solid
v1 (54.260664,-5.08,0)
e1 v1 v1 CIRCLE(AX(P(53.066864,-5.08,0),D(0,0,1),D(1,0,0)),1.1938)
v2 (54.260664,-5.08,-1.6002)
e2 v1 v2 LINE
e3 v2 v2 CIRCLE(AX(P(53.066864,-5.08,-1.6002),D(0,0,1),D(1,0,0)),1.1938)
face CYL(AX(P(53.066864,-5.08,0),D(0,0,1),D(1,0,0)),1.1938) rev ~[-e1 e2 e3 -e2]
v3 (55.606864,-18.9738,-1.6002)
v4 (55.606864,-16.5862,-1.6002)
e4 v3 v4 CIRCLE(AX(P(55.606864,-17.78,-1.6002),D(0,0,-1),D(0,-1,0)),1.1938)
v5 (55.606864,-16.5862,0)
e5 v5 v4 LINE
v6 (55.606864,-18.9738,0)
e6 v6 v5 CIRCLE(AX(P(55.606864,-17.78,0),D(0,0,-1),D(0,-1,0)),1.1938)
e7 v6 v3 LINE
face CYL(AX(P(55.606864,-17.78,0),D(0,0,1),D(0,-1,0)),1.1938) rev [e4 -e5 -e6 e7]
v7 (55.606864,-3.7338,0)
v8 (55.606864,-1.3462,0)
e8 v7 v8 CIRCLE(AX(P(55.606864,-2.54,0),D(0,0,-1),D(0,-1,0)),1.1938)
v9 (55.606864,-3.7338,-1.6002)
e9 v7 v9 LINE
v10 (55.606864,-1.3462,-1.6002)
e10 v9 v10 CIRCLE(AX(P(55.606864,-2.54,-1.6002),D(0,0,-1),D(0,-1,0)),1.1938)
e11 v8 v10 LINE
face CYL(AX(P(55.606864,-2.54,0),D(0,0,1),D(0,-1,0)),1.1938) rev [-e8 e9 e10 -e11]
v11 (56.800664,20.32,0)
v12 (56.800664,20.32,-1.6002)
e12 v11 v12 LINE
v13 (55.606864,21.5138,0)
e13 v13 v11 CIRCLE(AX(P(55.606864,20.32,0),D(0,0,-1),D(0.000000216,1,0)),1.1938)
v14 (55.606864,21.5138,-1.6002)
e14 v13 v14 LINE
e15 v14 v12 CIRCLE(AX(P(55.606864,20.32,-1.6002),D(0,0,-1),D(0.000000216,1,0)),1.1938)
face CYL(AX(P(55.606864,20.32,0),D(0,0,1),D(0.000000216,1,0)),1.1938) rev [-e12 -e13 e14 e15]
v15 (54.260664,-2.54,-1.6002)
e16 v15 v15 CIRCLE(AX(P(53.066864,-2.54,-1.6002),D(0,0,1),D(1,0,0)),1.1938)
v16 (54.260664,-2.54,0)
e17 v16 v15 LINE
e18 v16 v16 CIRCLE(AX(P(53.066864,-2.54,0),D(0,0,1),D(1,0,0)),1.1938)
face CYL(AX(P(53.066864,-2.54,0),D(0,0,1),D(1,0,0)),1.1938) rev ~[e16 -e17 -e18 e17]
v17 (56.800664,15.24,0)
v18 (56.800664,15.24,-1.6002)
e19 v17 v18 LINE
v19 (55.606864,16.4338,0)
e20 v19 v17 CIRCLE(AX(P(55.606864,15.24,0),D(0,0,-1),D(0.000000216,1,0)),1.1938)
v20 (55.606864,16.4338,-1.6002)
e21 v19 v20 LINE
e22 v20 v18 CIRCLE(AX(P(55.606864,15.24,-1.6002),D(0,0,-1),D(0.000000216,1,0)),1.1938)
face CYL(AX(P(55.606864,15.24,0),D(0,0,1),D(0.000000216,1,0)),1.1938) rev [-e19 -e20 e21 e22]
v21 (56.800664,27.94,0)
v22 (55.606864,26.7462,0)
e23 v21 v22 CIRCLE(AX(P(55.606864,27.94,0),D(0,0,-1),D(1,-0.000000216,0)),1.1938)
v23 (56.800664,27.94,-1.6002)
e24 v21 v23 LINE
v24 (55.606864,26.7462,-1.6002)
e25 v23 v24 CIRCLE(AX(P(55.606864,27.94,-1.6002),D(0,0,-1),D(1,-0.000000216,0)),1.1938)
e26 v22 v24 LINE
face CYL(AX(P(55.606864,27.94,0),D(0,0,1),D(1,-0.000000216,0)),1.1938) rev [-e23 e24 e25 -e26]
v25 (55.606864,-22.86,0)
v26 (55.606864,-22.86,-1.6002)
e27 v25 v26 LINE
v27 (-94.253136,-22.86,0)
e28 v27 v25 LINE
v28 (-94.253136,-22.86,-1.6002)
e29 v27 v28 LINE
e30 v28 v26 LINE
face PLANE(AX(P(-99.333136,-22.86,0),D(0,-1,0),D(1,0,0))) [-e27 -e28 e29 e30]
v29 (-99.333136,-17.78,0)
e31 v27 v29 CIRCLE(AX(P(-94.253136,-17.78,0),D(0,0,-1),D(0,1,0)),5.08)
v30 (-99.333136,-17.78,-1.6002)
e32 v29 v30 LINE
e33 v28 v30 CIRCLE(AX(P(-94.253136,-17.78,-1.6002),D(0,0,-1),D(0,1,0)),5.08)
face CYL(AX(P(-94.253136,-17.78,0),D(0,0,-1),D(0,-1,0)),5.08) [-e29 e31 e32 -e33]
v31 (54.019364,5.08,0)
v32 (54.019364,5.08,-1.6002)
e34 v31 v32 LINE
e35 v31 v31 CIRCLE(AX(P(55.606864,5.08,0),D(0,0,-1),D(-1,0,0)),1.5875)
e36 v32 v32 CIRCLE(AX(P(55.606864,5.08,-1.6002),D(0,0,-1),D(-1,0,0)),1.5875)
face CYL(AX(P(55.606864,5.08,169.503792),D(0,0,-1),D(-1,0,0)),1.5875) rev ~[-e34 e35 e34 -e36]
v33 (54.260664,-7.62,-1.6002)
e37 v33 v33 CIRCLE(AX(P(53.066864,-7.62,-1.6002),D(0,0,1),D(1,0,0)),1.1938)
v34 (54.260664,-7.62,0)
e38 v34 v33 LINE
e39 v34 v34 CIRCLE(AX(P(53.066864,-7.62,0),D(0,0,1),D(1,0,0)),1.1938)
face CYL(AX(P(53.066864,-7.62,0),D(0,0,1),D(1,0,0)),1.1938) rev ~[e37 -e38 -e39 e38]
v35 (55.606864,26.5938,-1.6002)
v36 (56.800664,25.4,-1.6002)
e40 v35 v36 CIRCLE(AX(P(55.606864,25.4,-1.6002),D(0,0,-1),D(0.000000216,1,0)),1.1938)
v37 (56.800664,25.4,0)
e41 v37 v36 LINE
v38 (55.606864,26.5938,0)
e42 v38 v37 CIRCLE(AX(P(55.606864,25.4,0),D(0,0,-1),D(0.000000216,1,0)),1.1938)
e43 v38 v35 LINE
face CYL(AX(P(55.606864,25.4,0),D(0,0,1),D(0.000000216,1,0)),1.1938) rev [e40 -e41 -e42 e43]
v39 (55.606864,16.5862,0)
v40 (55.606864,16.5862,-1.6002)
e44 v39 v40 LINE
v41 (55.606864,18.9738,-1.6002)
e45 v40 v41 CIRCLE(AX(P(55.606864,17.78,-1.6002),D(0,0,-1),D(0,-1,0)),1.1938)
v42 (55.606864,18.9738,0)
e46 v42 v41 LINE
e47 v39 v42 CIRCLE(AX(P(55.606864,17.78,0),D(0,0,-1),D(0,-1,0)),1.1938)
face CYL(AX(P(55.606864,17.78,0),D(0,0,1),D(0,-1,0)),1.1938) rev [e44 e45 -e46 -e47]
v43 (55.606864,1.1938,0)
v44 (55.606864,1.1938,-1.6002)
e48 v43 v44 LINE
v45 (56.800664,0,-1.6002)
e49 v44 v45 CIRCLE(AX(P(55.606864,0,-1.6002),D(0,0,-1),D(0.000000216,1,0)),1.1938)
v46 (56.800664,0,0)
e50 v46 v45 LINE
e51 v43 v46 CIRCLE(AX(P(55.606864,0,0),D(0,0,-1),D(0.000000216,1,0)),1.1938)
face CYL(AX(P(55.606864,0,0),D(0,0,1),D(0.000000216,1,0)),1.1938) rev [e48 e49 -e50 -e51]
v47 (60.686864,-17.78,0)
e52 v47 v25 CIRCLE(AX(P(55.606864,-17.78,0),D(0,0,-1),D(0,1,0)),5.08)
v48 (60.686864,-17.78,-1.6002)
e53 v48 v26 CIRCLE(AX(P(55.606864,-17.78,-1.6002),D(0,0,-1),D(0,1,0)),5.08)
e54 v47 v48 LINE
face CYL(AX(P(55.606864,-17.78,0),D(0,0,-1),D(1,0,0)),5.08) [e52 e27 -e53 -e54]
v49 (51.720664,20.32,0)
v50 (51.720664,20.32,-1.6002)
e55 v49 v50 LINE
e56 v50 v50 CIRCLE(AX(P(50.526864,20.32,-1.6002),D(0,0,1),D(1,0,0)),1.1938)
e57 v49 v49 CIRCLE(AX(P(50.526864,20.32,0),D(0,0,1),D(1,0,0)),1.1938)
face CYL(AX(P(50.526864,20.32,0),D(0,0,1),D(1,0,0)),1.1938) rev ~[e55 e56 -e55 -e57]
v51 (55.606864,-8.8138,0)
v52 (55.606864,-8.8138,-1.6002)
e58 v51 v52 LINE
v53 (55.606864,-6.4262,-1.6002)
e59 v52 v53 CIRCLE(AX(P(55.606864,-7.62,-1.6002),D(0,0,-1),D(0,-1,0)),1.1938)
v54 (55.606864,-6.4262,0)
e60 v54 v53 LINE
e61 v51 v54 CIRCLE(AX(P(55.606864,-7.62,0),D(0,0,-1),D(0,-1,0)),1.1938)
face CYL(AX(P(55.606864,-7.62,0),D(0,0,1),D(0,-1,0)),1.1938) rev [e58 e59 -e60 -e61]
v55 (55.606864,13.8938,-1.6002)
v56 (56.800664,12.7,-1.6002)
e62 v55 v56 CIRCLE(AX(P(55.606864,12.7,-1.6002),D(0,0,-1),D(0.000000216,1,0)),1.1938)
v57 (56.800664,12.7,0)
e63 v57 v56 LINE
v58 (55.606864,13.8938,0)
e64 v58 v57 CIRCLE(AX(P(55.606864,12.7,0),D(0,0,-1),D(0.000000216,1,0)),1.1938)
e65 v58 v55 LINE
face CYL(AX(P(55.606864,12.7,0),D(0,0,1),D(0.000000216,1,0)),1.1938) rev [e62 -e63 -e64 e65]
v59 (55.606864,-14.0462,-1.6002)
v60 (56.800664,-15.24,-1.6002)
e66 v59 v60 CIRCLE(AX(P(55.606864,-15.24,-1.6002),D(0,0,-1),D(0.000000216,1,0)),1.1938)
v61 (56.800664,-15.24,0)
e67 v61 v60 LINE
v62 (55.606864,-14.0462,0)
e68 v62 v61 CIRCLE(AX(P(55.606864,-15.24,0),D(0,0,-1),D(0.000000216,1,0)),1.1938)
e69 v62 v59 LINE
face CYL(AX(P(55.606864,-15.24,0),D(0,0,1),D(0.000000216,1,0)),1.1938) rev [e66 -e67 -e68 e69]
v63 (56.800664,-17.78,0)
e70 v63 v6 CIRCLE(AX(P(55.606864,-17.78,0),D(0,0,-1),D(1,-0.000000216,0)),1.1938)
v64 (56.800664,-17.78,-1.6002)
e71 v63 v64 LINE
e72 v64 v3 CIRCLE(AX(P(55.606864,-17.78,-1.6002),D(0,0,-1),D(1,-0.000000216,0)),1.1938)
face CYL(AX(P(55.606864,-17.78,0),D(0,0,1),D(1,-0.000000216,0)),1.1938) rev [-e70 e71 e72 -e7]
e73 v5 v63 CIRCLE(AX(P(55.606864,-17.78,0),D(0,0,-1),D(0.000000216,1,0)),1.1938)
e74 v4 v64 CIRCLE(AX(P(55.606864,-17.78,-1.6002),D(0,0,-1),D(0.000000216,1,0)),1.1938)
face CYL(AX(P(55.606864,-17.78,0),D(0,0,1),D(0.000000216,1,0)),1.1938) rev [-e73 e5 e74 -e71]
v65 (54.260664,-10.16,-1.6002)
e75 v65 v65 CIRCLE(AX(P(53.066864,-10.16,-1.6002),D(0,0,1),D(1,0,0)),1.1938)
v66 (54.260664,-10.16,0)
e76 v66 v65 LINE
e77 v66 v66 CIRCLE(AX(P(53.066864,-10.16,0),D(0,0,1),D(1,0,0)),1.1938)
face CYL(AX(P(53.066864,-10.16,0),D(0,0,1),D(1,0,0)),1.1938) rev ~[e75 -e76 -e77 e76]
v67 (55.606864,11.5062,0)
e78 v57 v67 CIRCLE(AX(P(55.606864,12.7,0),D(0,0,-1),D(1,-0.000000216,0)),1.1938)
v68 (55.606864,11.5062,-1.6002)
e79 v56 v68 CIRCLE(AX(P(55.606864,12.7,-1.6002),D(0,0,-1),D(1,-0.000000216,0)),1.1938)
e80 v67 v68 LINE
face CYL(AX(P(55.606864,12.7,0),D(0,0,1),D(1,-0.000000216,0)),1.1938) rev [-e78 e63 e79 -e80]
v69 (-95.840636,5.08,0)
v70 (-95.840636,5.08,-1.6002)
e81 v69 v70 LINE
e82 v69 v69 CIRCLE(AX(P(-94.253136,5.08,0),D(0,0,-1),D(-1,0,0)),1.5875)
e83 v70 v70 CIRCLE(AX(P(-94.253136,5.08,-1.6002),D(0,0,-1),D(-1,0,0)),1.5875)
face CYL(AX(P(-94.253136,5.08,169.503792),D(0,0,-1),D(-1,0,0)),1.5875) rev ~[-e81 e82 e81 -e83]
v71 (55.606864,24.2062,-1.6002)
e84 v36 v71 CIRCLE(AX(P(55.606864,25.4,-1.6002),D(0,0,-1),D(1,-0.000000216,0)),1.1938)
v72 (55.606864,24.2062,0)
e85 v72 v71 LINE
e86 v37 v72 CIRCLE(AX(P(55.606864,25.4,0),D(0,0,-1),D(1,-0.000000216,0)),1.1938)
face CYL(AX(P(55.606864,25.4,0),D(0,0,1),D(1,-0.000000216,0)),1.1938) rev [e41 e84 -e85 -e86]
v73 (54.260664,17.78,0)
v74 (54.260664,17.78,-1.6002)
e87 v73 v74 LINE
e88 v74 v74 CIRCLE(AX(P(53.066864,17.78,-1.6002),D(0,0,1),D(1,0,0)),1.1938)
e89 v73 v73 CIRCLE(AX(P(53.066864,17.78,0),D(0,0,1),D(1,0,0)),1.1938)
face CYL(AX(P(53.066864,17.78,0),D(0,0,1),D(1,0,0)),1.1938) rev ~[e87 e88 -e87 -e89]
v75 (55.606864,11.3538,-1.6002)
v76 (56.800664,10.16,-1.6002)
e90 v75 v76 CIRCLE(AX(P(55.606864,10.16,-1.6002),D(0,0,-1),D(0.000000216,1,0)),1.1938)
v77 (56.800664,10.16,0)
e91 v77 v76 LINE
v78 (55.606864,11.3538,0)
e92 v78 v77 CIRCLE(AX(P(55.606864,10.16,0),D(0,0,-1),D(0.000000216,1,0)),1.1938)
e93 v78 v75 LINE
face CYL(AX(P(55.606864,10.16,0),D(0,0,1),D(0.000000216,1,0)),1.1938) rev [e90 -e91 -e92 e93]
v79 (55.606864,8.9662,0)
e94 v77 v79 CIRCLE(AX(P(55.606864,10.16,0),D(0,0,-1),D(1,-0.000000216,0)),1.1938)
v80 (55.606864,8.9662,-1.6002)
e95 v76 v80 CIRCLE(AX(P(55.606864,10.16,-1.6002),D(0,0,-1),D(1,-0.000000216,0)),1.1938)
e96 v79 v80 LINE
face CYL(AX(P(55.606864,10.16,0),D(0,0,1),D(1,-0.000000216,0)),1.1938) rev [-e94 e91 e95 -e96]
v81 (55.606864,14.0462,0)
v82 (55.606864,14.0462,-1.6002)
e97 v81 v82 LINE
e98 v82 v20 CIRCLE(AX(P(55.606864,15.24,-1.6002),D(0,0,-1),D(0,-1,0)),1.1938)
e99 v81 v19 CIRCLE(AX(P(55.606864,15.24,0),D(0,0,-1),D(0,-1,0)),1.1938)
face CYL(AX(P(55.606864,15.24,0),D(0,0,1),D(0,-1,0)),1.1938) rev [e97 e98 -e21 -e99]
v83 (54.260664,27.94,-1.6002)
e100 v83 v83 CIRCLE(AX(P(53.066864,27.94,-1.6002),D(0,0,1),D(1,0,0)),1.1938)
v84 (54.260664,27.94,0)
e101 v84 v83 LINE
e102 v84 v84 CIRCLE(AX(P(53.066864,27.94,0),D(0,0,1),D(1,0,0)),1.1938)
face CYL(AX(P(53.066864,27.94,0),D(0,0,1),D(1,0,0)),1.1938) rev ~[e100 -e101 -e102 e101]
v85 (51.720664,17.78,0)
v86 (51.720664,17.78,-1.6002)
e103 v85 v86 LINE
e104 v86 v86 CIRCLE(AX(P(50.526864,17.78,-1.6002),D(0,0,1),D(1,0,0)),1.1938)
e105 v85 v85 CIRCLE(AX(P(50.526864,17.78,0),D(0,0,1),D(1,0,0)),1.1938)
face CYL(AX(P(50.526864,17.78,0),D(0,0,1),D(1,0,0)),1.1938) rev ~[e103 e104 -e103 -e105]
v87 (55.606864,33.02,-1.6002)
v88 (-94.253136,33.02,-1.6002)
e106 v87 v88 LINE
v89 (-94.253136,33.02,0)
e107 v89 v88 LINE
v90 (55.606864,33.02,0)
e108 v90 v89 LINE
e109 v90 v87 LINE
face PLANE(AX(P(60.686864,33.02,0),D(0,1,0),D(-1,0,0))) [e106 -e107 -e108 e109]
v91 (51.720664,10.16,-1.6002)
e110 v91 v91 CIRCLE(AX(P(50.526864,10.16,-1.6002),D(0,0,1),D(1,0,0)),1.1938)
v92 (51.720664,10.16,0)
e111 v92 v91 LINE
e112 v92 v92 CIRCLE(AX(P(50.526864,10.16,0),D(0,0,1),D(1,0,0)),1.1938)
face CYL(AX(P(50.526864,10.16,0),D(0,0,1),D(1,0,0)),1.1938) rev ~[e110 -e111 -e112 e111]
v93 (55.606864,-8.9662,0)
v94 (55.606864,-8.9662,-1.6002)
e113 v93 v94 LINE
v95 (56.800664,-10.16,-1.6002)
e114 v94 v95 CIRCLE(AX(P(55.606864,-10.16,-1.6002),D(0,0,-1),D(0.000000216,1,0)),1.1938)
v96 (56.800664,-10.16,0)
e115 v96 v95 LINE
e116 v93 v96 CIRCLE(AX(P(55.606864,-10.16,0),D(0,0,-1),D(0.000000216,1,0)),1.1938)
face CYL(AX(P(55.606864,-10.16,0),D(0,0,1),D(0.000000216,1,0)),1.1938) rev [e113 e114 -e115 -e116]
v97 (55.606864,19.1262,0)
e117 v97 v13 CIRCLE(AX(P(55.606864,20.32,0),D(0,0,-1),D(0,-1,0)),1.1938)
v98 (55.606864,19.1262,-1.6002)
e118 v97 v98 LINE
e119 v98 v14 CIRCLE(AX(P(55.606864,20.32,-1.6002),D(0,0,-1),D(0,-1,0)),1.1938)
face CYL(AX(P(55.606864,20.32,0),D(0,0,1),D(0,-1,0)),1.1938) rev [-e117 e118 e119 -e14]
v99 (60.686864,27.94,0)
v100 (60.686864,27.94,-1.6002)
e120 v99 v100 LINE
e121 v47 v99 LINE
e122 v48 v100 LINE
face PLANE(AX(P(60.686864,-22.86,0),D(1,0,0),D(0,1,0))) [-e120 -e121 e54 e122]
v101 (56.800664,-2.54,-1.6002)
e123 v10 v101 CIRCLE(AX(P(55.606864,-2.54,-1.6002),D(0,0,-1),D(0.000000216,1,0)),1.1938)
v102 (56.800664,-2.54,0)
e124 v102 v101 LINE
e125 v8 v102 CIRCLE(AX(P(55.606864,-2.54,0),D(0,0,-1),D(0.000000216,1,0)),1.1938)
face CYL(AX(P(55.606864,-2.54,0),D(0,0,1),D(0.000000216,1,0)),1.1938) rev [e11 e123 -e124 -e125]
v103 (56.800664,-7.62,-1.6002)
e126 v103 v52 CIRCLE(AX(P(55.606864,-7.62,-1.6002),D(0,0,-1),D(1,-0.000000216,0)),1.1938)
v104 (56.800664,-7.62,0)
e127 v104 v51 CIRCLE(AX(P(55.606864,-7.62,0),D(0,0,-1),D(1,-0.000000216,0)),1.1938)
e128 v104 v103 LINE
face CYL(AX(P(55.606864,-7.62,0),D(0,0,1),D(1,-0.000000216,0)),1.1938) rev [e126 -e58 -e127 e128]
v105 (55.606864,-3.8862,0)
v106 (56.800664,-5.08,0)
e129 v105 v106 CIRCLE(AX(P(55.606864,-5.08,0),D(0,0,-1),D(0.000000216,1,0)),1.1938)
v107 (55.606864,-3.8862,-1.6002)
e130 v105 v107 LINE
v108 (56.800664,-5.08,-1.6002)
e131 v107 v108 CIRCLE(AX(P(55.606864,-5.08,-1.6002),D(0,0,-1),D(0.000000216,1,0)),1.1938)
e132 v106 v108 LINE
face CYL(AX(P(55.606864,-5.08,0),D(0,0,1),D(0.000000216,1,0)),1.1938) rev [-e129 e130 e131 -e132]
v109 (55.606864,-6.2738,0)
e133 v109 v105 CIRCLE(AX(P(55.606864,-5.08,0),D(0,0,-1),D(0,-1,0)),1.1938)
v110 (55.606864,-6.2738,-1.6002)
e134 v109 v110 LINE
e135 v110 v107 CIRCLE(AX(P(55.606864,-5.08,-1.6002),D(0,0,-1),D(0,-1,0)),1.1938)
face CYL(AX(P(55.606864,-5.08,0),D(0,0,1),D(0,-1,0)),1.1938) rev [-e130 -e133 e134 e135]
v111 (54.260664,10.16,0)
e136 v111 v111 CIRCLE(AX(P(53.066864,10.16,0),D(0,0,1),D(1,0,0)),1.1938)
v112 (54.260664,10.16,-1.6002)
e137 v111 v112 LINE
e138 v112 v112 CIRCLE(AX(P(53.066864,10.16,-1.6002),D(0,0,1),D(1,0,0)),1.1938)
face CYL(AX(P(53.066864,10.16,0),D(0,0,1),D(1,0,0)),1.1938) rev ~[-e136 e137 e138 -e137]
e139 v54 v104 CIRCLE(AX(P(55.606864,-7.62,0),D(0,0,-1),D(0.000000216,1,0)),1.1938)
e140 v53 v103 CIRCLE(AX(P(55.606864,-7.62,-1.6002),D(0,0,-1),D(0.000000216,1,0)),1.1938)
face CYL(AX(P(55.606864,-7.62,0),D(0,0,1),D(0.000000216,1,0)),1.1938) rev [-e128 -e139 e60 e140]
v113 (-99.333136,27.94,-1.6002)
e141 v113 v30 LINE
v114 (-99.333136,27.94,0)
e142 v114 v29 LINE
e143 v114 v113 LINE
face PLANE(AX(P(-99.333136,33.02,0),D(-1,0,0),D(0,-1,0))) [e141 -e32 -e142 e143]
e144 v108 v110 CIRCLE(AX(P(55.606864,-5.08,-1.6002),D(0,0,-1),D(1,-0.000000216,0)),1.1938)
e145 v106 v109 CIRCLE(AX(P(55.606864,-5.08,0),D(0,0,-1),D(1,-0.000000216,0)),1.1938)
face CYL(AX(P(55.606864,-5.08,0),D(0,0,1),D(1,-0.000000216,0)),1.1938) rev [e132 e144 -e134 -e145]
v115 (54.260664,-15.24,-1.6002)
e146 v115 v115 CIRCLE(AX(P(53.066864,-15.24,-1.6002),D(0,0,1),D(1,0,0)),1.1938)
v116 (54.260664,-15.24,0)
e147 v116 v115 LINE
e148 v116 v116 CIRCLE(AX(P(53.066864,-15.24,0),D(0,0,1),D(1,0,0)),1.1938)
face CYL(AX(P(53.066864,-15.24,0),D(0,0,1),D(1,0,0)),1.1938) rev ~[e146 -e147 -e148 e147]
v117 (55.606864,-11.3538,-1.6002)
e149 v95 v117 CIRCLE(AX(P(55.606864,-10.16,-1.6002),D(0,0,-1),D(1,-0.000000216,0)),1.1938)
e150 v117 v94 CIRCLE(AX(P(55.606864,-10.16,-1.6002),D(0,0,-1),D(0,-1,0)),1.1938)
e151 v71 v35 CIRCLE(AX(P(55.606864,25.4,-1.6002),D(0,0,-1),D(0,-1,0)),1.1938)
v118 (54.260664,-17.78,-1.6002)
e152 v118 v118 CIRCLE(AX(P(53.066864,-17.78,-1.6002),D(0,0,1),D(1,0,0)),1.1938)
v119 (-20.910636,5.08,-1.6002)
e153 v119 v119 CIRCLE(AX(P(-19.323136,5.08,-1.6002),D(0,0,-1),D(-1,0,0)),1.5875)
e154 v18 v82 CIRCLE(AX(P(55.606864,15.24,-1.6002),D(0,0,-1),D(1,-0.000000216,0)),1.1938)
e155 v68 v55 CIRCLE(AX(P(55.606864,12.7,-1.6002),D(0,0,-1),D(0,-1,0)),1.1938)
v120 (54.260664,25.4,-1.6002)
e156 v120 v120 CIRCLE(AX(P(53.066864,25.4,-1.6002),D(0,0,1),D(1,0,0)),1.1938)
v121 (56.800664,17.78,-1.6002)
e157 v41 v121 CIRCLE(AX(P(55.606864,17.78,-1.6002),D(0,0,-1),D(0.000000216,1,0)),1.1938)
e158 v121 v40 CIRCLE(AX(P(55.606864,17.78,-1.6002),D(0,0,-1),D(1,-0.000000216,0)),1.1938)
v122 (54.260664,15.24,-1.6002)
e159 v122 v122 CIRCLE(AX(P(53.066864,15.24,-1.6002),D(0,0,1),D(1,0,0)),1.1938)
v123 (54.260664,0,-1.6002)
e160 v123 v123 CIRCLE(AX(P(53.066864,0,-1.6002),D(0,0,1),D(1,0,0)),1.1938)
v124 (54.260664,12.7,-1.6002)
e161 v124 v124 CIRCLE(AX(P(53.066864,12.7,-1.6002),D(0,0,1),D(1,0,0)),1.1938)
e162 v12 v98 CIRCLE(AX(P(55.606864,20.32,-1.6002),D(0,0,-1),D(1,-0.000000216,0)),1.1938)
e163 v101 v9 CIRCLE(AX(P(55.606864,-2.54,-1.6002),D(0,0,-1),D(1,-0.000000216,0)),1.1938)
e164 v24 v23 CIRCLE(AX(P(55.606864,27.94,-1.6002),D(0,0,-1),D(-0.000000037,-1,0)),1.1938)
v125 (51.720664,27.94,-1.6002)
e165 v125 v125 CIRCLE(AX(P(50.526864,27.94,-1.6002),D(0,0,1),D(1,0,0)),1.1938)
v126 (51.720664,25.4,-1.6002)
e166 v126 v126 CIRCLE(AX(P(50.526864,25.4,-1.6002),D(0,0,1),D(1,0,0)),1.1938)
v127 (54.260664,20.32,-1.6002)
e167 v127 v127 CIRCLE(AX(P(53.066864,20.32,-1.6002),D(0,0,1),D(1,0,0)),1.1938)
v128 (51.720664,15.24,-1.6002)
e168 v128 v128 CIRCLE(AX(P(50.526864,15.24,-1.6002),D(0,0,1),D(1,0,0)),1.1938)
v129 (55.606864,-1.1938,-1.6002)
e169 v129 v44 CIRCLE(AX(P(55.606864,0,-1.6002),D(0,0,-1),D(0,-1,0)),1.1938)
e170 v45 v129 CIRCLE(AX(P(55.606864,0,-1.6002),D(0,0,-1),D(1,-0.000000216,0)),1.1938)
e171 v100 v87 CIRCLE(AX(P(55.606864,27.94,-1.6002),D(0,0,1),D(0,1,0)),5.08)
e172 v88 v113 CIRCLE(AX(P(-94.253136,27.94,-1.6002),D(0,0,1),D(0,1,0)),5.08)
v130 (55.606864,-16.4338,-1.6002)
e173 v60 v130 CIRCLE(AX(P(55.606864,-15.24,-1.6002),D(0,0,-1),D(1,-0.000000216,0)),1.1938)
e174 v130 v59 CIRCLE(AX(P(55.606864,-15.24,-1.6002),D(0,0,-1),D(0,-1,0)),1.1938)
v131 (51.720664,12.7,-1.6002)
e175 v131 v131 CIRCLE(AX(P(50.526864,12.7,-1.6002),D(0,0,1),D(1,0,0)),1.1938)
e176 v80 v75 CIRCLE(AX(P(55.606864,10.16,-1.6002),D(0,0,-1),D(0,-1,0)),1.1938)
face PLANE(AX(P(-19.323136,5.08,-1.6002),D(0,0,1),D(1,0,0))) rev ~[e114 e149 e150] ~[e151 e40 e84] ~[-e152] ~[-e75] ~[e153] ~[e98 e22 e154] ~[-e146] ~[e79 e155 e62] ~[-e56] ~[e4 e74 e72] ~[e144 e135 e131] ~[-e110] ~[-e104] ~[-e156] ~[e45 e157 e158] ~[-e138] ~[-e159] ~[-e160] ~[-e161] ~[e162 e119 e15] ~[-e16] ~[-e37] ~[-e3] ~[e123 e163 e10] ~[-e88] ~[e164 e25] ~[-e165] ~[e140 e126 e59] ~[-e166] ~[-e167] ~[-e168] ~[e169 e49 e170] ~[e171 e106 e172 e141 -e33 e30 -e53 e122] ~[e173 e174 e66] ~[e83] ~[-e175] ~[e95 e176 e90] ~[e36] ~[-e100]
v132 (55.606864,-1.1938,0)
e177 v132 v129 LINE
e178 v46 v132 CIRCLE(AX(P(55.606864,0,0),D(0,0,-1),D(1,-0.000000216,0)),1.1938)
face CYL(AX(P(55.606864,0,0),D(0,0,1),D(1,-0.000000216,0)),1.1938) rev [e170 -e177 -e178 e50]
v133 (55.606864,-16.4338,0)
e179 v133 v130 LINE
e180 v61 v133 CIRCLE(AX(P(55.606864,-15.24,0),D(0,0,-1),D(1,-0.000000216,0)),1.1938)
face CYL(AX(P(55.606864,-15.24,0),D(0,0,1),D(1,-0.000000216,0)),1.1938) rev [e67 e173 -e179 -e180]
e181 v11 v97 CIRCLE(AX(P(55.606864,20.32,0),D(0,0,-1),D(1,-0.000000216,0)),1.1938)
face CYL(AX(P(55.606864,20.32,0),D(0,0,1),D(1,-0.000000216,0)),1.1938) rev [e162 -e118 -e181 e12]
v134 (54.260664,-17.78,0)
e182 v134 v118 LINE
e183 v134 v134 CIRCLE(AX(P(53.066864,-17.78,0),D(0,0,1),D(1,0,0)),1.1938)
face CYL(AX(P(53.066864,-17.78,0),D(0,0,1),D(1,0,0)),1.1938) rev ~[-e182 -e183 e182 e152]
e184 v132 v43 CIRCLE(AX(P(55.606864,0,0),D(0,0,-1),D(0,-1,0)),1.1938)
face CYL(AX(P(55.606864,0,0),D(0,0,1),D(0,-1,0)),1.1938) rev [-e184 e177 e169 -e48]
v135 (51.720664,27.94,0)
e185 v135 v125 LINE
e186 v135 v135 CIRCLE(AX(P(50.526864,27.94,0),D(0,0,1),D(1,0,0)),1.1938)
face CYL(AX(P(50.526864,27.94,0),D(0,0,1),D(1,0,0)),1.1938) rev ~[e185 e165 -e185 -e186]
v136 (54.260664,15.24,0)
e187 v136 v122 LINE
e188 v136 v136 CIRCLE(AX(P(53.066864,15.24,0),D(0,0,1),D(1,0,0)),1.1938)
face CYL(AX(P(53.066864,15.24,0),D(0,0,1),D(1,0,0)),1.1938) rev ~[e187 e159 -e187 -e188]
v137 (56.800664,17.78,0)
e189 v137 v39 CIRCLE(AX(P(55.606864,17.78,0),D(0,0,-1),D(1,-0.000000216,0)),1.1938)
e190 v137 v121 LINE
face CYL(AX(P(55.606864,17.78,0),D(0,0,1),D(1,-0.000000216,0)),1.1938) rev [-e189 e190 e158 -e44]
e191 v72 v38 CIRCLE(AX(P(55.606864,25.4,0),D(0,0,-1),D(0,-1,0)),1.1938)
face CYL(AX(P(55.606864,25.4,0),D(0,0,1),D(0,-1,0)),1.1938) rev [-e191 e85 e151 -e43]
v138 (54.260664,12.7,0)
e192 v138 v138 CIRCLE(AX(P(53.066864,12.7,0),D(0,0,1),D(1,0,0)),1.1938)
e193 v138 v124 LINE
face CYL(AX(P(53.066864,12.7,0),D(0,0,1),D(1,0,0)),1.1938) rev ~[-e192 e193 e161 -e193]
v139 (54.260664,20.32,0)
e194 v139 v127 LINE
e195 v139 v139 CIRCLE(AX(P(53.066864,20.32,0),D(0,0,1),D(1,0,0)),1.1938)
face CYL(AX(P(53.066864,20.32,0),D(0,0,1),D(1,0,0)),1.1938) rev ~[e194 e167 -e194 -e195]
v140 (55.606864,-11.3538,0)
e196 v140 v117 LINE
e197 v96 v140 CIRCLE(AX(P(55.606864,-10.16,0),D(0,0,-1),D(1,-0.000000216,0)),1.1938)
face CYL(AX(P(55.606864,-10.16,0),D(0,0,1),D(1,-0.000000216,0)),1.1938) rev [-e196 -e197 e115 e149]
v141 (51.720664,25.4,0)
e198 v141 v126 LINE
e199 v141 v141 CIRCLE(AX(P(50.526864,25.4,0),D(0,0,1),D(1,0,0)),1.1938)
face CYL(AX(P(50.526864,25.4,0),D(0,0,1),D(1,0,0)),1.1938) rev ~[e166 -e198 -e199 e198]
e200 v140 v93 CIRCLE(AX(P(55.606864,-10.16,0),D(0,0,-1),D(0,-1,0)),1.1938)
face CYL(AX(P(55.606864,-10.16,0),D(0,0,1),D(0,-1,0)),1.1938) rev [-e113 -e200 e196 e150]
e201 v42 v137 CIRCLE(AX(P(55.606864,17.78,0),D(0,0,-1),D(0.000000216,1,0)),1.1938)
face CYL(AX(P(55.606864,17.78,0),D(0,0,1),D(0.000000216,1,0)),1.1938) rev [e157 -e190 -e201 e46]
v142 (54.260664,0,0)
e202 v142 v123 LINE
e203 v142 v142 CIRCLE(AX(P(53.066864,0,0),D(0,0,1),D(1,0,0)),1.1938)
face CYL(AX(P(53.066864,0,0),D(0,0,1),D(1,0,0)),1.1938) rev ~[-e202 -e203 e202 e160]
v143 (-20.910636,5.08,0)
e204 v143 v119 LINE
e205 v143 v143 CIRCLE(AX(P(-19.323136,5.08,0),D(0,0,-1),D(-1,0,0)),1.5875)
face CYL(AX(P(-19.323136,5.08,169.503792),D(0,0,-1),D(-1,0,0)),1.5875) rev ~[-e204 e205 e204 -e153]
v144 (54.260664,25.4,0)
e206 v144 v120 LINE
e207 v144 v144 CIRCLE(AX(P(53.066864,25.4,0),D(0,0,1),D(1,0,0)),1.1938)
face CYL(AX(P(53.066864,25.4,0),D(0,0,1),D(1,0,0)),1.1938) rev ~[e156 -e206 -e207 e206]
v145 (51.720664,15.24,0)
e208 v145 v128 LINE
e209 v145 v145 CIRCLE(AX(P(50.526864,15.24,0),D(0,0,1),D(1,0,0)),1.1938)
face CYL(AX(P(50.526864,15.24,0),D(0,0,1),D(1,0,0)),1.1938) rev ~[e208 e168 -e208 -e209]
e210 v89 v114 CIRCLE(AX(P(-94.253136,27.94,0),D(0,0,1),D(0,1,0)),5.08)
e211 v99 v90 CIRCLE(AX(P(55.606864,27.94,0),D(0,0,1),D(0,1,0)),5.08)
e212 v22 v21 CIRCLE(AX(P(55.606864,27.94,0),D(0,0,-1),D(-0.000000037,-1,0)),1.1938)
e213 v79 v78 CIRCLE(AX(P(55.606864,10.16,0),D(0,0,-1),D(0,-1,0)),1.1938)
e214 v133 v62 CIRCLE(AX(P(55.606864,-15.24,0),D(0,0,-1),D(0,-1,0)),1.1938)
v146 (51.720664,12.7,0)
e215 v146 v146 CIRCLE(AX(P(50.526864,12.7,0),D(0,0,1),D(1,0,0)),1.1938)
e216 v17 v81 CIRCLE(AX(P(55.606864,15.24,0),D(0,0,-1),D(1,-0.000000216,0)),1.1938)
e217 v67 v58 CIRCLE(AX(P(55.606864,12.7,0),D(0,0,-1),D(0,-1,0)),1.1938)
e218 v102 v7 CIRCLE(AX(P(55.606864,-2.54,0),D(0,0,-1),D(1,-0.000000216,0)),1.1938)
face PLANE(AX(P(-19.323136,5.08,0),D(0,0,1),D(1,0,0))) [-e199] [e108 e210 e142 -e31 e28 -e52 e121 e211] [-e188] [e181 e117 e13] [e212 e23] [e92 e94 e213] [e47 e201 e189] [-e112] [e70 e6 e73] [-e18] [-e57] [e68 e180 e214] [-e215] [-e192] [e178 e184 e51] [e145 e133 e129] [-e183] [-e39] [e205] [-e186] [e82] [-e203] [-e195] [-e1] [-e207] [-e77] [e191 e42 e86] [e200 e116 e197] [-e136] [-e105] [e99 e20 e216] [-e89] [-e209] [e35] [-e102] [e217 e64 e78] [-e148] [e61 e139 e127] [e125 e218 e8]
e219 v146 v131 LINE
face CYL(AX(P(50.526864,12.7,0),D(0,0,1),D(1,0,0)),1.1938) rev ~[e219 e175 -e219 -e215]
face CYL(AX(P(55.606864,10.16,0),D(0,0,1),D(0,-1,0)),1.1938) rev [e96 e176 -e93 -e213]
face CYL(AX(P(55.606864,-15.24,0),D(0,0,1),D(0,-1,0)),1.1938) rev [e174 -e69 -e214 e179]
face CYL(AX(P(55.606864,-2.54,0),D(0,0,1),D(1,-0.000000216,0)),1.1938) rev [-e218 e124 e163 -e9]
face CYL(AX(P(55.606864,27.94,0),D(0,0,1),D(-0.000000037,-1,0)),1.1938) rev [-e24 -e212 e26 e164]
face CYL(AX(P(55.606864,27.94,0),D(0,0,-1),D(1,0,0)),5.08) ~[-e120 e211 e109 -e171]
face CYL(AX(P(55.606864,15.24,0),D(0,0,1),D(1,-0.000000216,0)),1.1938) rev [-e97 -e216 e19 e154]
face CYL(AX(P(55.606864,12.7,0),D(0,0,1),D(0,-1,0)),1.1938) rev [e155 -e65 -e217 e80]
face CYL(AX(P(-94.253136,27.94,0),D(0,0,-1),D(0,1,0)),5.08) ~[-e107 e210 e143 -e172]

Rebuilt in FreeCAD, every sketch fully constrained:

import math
import FreeCAD as App
import Part
import Sketcher
Q = App.Units.Quantity


def edges_at(feature, points):
    """Names of the edges that pass closest to the given points."""
    edges = feature.Shape.Edges
    near = lambda p: min(range(len(edges)), key=lambda i: edges[i].distToShape(Part.Vertex(*p))[0])
    return sorted({f"Edge{near(p) + 1}" for p in points})

doc = App.newDocument("Part")
body = doc.addObject("PartDesign::Body", "Body")

sketch1 = doc.addObject("Sketcher::SketchObject", "Sketch")
body.addObject(sketch1)
sketch1.AttachmentSupport = (doc.XY_Plane, [""])
sketch1.MapMode = "FlatFace"
sketch1.addGeometry(Part.LineSegment(App.Vector(60.7, -22.9, 0), App.Vector(60.7, 33, 0)), False)
sketch1.addGeometry(Part.LineSegment(App.Vector(60.7, 33, 0), App.Vector(-99.3, 33, 0)), False)
sketch1.addGeometry(Part.LineSegment(App.Vector(-99.3, 33, 0), App.Vector(-99.3, -22.9, 0)), False)
sketch1.addGeometry(Part.LineSegment(App.Vector(-99.3, -22.9, 0), App.Vector(60.7, -22.9, 0)), False)
sketch1.addGeometry(Part.Circle(App.Vector(53.1, -17.8, 0), App.Vector(0, 0, 1), 1.2), False)
sketch1.addGeometry(Part.Circle(App.Vector(53.1, -15.2, 0), App.Vector(0, 0, 1), 1.2), False)
sketch1.addGeometry(Part.Circle(App.Vector(53.1, -10.2, 0), App.Vector(0, 0, 1), 1.2), False)
sketch1.addGeometry(Part.Circle(App.Vector(53.1, -7.6, 0), App.Vector(0, 0, 1), 1.2), False)
sketch1.addGeometry(Part.ArcOfCircle(Part.Circle(App.Vector(55.6, -17.8, 0), App.Vector(0, 0, 1), 1.2), math.radians(-90), math.radians(0)), False)
sketch1.addGeometry(Part.ArcOfCircle(Part.Circle(App.Vector(55.6, -17.8, 0), App.Vector(0, 0, 1), 1.2), math.radians(90), math.radians(270)), False)
sketch1.addGeometry(Part.ArcOfCircle(Part.Circle(App.Vector(55.6, -17.8, 0), App.Vector(0, 0, 1), 1.2), math.radians(0), math.radians(90)), False)
sketch1.addGeometry(Part.ArcOfCircle(Part.Circle(App.Vector(55.6, -15.2, 0), App.Vector(0, 0, 1), 1.2), math.radians(-90), math.radians(0)), False)
sketch1.addGeometry(Part.ArcOfCircle(Part.Circle(App.Vector(55.6, -15.2, 0), App.Vector(0, 0, 1), 1.2), math.radians(90), math.radians(270)), False)
sketch1.addGeometry(Part.ArcOfCircle(Part.Circle(App.Vector(55.6, -15.2, 0), App.Vector(0, 0, 1), 1.2), math.radians(0), math.radians(90)), False)
sketch1.addGeometry(Part.ArcOfCircle(Part.Circle(App.Vector(55.6, -10.2, 0), App.Vector(0, 0, 1), 1.2), math.radians(-90), math.radians(0)), False)
sketch1.addGeometry(Part.ArcOfCircle(Part.Circle(App.Vector(55.6, -10.2, 0), App.Vector(0, 0, 1), 1.2), math.radians(90), math.radians(270)), False)
sketch1.addGeometry(Part.ArcOfCircle(Part.Circle(App.Vector(55.6, -10.2, 0), App.Vector(0, 0, 1), 1.2), math.radians(0), math.radians(90)), False)
sketch1.addGeometry(Part.ArcOfCircle(Part.Circle(App.Vector(55.6, -7.6, 0), App.Vector(0, 0, 1), 1.2), math.radians(0), math.radians(90)), False)
sketch1.addGeometry(Part.ArcOfCircle(Part.Circle(App.Vector(55.6, -7.6, 0), App.Vector(0, 0, 1), 1.2), math.radians(-90), math.radians(0)), False)
sketch1.addGeometry(Part.ArcOfCircle(Part.Circle(App.Vector(55.6, -7.6, 0), App.Vector(0, 0, 1), 1.2), math.radians(90), math.radians(270)), False)
sketch1.addGeometry(Part.Circle(App.Vector(53.1, -5.1, 0), App.Vector(0, 0, 1), 1.2), False)
sketch1.addGeometry(Part.Circle(App.Vector(53.1, -2.5, 0), App.Vector(0, 0, 1), 1.2), False)
sketch1.addGeometry(Part.Circle(App.Vector(53.1, 0, 0), App.Vector(0, 0, 1), 1.2), False)
sketch1.addGeometry(Part.ArcOfCircle(Part.Circle(App.Vector(55.6, -5.1, 0), App.Vector(0, 0, 1), 1.2), math.radians(0), math.radians(90)), False)
sketch1.addGeometry(Part.ArcOfCircle(Part.Circle(App.Vector(55.6, -5.1, 0), App.Vector(0, 0, 1), 1.2), math.radians(-90), math.radians(0)), False)
sketch1.addGeometry(Part.ArcOfCircle(Part.Circle(App.Vector(55.6, -5.1, 0), App.Vector(0, 0, 1), 1.2), math.radians(90), math.radians(270)), False)
sketch1.addGeometry(Part.ArcOfCircle(Part.Circle(App.Vector(55.6, -2.5, 0), App.Vector(0, 0, 1), 1.2), math.radians(0), math.radians(90)), False)
sketch1.addGeometry(Part.ArcOfCircle(Part.Circle(App.Vector(55.6, -2.5, 0), App.Vector(0, 0, 1), 1.2), math.radians(-90), math.radians(0)), False)
sketch1.addGeometry(Part.ArcOfCircle(Part.Circle(App.Vector(55.6, -2.5, 0), App.Vector(0, 0, 1), 1.2), math.radians(90), math.radians(270)), False)
sketch1.addGeometry(Part.ArcOfCircle(Part.Circle(App.Vector(55.6, 0, 0), App.Vector(0, 0, 1), 1.2), math.radians(0), math.radians(90)), False)
sketch1.addGeometry(Part.ArcOfCircle(Part.Circle(App.Vector(55.6, 0, 0), App.Vector(0, 0, 1), 1.2), math.radians(-90), math.radians(0)), False)
sketch1.addGeometry(Part.ArcOfCircle(Part.Circle(App.Vector(55.6, 0, 0), App.Vector(0, 0, 1), 1.2), math.radians(90), math.radians(270)), False)
sketch1.addGeometry(Part.Circle(App.Vector(50.5, 10.2, 0), App.Vector(0, 0, 1), 1.2), False)
sketch1.addGeometry(Part.Circle(App.Vector(50.5, 12.7, 0), App.Vector(0, 0, 1), 1.2), False)
sketch1.addGeometry(Part.Circle(App.Vector(50.5, 15.2, 0), App.Vector(0, 0, 1), 1.2), False)
sketch1.addGeometry(Part.Circle(App.Vector(50.5, 17.8, 0), App.Vector(0, 0, 1), 1.2), False)
sketch1.addGeometry(Part.Circle(App.Vector(50.5, 20.3, 0), App.Vector(0, 0, 1), 1.2), False)
sketch1.addGeometry(Part.Circle(App.Vector(50.5, 25.4, 0), App.Vector(0, 0, 1), 1.2), False)
sketch1.addGeometry(Part.Circle(App.Vector(50.5, 27.9, 0), App.Vector(0, 0, 1), 1.2), False)
sketch1.addGeometry(Part.Circle(App.Vector(53.1, 10.2, 0), App.Vector(0, 0, 1), 1.2), False)
sketch1.addGeometry(Part.Circle(App.Vector(53.1, 12.7, 0), App.Vector(0, 0, 1), 1.2), False)
sketch1.addGeometry(Part.Circle(App.Vector(53.1, 15.2, 0), App.Vector(0, 0, 1), 1.2), False)
sketch1.addGeometry(Part.ArcOfCircle(Part.Circle(App.Vector(55.6, 10.2, 0), App.Vector(0, 0, 1), 1.2), math.radians(0), math.radians(90)), False)
sketch1.addGeometry(Part.ArcOfCircle(Part.Circle(App.Vector(55.6, 10.2, 0), App.Vector(0, 0, 1), 1.2), math.radians(-90), math.radians(0)), False)
sketch1.addGeometry(Part.ArcOfCircle(Part.Circle(App.Vector(55.6, 10.2, 0), App.Vector(0, 0, 1), 1.2), math.radians(90), math.radians(270)), False)
sketch1.addGeometry(Part.ArcOfCircle(Part.Circle(App.Vector(55.6, 12.7, 0), App.Vector(0, 0, 1), 1.2), math.radians(0), math.radians(90)), False)
sketch1.addGeometry(Part.ArcOfCircle(Part.Circle(App.Vector(55.6, 12.7, 0), App.Vector(0, 0, 1), 1.2), math.radians(-90), math.radians(0)), False)
sketch1.addGeometry(Part.ArcOfCircle(Part.Circle(App.Vector(55.6, 12.7, 0), App.Vector(0, 0, 1), 1.2), math.radians(90), math.radians(270)), False)
sketch1.addGeometry(Part.ArcOfCircle(Part.Circle(App.Vector(55.6, 15.2, 0), App.Vector(0, 0, 1), 1.2), math.radians(0), math.radians(90)), False)
sketch1.addGeometry(Part.ArcOfCircle(Part.Circle(App.Vector(55.6, 15.2, 0), App.Vector(0, 0, 1), 1.2), math.radians(-90), math.radians(0)), False)
sketch1.addGeometry(Part.ArcOfCircle(Part.Circle(App.Vector(55.6, 15.2, 0), App.Vector(0, 0, 1), 1.2), math.radians(90), math.radians(270)), False)
sketch1.addGeometry(Part.Circle(App.Vector(53.1, 17.8, 0), App.Vector(0, 0, 1), 1.2), False)
sketch1.addGeometry(Part.Circle(App.Vector(53.1, 20.3, 0), App.Vector(0, 0, 1), 1.2), False)
sketch1.addGeometry(Part.Circle(App.Vector(53.1, 25.4, 0), App.Vector(0, 0, 1), 1.2), False)
sketch1.addGeometry(Part.Circle(App.Vector(53.1, 27.9, 0), App.Vector(0, 0, 1), 1.2), False)
sketch1.addGeometry(Part.ArcOfCircle(Part.Circle(App.Vector(55.6, 17.8, 0), App.Vector(0, 0, 1), 1.2), math.radians(0), math.radians(90)), False)
sketch1.addGeometry(Part.ArcOfCircle(Part.Circle(App.Vector(55.6, 17.8, 0), App.Vector(0, 0, 1), 1.2), math.radians(-90), math.radians(0)), False)
sketch1.addGeometry(Part.ArcOfCircle(Part.Circle(App.Vector(55.6, 17.8, 0), App.Vector(0, 0, 1), 1.2), math.radians(90), math.radians(270)), False)
sketch1.addGeometry(Part.ArcOfCircle(Part.Circle(App.Vector(55.6, 20.3, 0), App.Vector(0, 0, 1), 1.2), math.radians(0), math.radians(90)), False)
sketch1.addGeometry(Part.ArcOfCircle(Part.Circle(App.Vector(55.6, 20.3, 0), App.Vector(0, 0, 1), 1.2), math.radians(-90), math.radians(0)), False)
sketch1.addGeometry(Part.ArcOfCircle(Part.Circle(App.Vector(55.6, 20.3, 0), App.Vector(0, 0, 1), 1.2), math.radians(90), math.radians(270)), False)
sketch1.addGeometry(Part.ArcOfCircle(Part.Circle(App.Vector(55.6, 25.4, 0), App.Vector(0, 0, 1), 1.2), math.radians(0), math.radians(90)), False)
sketch1.addGeometry(Part.ArcOfCircle(Part.Circle(App.Vector(55.6, 25.4, 0), App.Vector(0, 0, 1), 1.2), math.radians(-90), math.radians(0)), False)
sketch1.addGeometry(Part.ArcOfCircle(Part.Circle(App.Vector(55.6, 25.4, 0), App.Vector(0, 0, 1), 1.2), math.radians(90), math.radians(270)), False)
sketch1.addGeometry(Part.ArcOfCircle(Part.Circle(App.Vector(55.6, 27.9, 0), App.Vector(0, 0, 1), 1.2), math.radians(0), math.radians(270)), False)
sketch1.addGeometry(Part.ArcOfCircle(Part.Circle(App.Vector(55.6, 27.9, 0), App.Vector(0, 0, 1), 1.2), math.radians(-90), math.radians(0)), False)
sketch1.addConstraint(Sketcher.Constraint("Coincident", 0, 2, 1, 1))
sketch1.addConstraint(Sketcher.Constraint("Coincident", 1, 2, 2, 1))
sketch1.addConstraint(Sketcher.Constraint("Coincident", 2, 2, 3, 1))
sketch1.addConstraint(Sketcher.Constraint("Coincident", 3, 2, 0, 1))
sketch1.addConstraint(Sketcher.Constraint("Tangent", 8, 1, 9, 2))
sketch1.addConstraint(Sketcher.Constraint("Tangent", 9, 1, 10, 2))
sketch1.addConstraint(Sketcher.Constraint("Tangent", 10, 1, 8, 2))
sketch1.addConstraint(Sketcher.Constraint("Tangent", 11, 1, 12, 2))
sketch1.addConstraint(Sketcher.Constraint("Tangent", 12, 1, 13, 2))
sketch1.addConstraint(Sketcher.Constraint("Tangent", 13, 1, 11, 2))
sketch1.addConstraint(Sketcher.Constraint("Tangent", 14, 1, 15, 2))
sketch1.addConstraint(Sketcher.Constraint("Tangent", 15, 1, 16, 2))
sketch1.addConstraint(Sketcher.Constraint("Tangent", 16, 1, 14, 2))
sketch1.addConstraint(Sketcher.Constraint("Tangent", 17, 1, 18, 2))
sketch1.addConstraint(Sketcher.Constraint("Tangent", 18, 1, 19, 2))
sketch1.addConstraint(Sketcher.Constraint("Tangent", 19, 1, 17, 2))
sketch1.addConstraint(Sketcher.Constraint("Tangent", 23, 1, 24, 2))
sketch1.addConstraint(Sketcher.Constraint("Tangent", 24, 1, 25, 2))
sketch1.addConstraint(Sketcher.Constraint("Tangent", 25, 1, 23, 2))
sketch1.addConstraint(Sketcher.Constraint("Tangent", 26, 1, 27, 2))
sketch1.addConstraint(Sketcher.Constraint("Tangent", 27, 1, 28, 2))
sketch1.addConstraint(Sketcher.Constraint("Tangent", 28, 1, 26, 2))
sketch1.addConstraint(Sketcher.Constraint("Tangent", 29, 1, 30, 2))
sketch1.addConstraint(Sketcher.Constraint("Tangent", 30, 1, 31, 2))
sketch1.addConstraint(Sketcher.Constraint("Tangent", 31, 1, 29, 2))
sketch1.addConstraint(Sketcher.Constraint("Tangent", 42, 1, 43, 2))
sketch1.addConstraint(Sketcher.Constraint("Tangent", 43, 1, 44, 2))
sketch1.addConstraint(Sketcher.Constraint("Tangent", 44, 1, 42, 2))
sketch1.addConstraint(Sketcher.Constraint("Tangent", 45, 1, 46, 2))
sketch1.addConstraint(Sketcher.Constraint("Tangent", 46, 1, 47, 2))
sketch1.addConstraint(Sketcher.Constraint("Tangent", 47, 1, 45, 2))
sketch1.addConstraint(Sketcher.Constraint("Tangent", 48, 1, 49, 2))
sketch1.addConstraint(Sketcher.Constraint("Tangent", 49, 1, 50, 2))
sketch1.addConstraint(Sketcher.Constraint("Tangent", 50, 1, 48, 2))
sketch1.addConstraint(Sketcher.Constraint("Tangent", 55, 1, 56, 2))
sketch1.addConstraint(Sketcher.Constraint("Tangent", 56, 1, 57, 2))
sketch1.addConstraint(Sketcher.Constraint("Tangent", 57, 1, 55, 2))
sketch1.addConstraint(Sketcher.Constraint("Tangent", 58, 1, 59, 2))
sketch1.addConstraint(Sketcher.Constraint("Tangent", 59, 1, 60, 2))
sketch1.addConstraint(Sketcher.Constraint("Tangent", 60, 1, 58, 2))
sketch1.addConstraint(Sketcher.Constraint("Tangent", 61, 1, 62, 2))
sketch1.addConstraint(Sketcher.Constraint("Tangent", 62, 1, 63, 2))
sketch1.addConstraint(Sketcher.Constraint("Tangent", 63, 1, 61, 2))
sketch1.addConstraint(Sketcher.Constraint("Tangent", 64, 1, 65, 2))
sketch1.addConstraint(Sketcher.Constraint("Coincident", 65, 1, 64, 2))
sketch1.addConstraint(Sketcher.Constraint("Vertical", 0))
sketch1.addConstraint(Sketcher.Constraint("Horizontal", 1))
sketch1.addConstraint(Sketcher.Constraint("Vertical", 2))
sketch1.addConstraint(Sketcher.Constraint("Horizontal", 3))
sketch1.addConstraint(Sketcher.Constraint("Equal", 4, 5))
sketch1.addConstraint(Sketcher.Constraint("Equal", 5, 6))
sketch1.addConstraint(Sketcher.Constraint("Equal", 6, 7))
sketch1.addConstraint(Sketcher.Constraint("Equal", 7, 8))
sketch1.addConstraint(Sketcher.Constraint("Equal", 10, 11))
sketch1.addConstraint(Sketcher.Constraint("Equal", 13, 14))
sketch1.addConstraint(Sketcher.Constraint("Equal", 16, 17))
sketch1.addConstraint(Sketcher.Constraint("Equal", 19, 20))
sketch1.addConstraint(Sketcher.Constraint("Equal", 20, 21))
sketch1.addConstraint(Sketcher.Constraint("Equal", 21, 22))
sketch1.addConstraint(Sketcher.Constraint("Equal", 22, 23))
sketch1.addConstraint(Sketcher.Constraint("Equal", 25, 26))
sketch1.addConstraint(Sketcher.Constraint("Equal", 28, 29))
sketch1.addConstraint(Sketcher.Constraint("Equal", 31, 32))
sketch1.addConstraint(Sketcher.Constraint("Equal", 32, 33))
sketch1.addConstraint(Sketcher.Constraint("Equal", 33, 34))
sketch1.addConstraint(Sketcher.Constraint("Equal", 34, 35))
sketch1.addConstraint(Sketcher.Constraint("Equal", 35, 36))
sketch1.addConstraint(Sketcher.Constraint("Equal", 36, 37))
sketch1.addConstraint(Sketcher.Constraint("Equal", 37, 38))
sketch1.addConstraint(Sketcher.Constraint("Equal", 38, 39))
sketch1.addConstraint(Sketcher.Constraint("Equal", 39, 40))
sketch1.addConstraint(Sketcher.Constraint("Equal", 40, 41))
sketch1.addConstraint(Sketcher.Constraint("Equal", 41, 42))
sketch1.addConstraint(Sketcher.Constraint("Equal", 44, 45))
sketch1.addConstraint(Sketcher.Constraint("Equal", 47, 48))
sketch1.addConstraint(Sketcher.Constraint("Equal", 50, 51))
sketch1.addConstraint(Sketcher.Constraint("Equal", 51, 52))
sketch1.addConstraint(Sketcher.Constraint("Equal", 52, 53))
sketch1.addConstraint(Sketcher.Constraint("Equal", 53, 54))
sketch1.addConstraint(Sketcher.Constraint("Equal", 54, 55))
sketch1.addConstraint(Sketcher.Constraint("Equal", 57, 58))
sketch1.addConstraint(Sketcher.Constraint("Equal", 60, 61))
sketch1.addConstraint(Sketcher.Constraint("Equal", 63, 64))
sketch1.addConstraint(Sketcher.Constraint("Symmetric", 6, 3, 39, 3, -1))
sketch1.addConstraint(Sketcher.Constraint("Symmetric", 5, 3, 41, 3, -1))
sketch1.addConstraint(Sketcher.Constraint("Symmetric", 14, 3, 42, 3, -1))
sketch1.addConstraint(Sketcher.Constraint("Symmetric", 11, 3, 48, 3, -1))
sketch1.addConstraint(Sketcher.Constraint("Symmetric", 4, 3, 51, 3, -1))
sketch1.addConstraint(Sketcher.Constraint("Symmetric", 8, 3, 55, 3, -1))
sketch1.addConstraint(Sketcher.Constraint("Symmetric", 30, 1, 31, 1, -1))
sketch1.addConstraint(Sketcher.Constraint("PointOnObject", 22, 3, -1))
sketch1.addConstraint(Sketcher.Constraint("PointOnObject", 29, 1, -1))
sketch1.addConstraint(Sketcher.Constraint("Horizontal", 4, 3, 8, 3))
sketch1.addConstraint(Sketcher.Constraint("Horizontal", 5, 3, 11, 3))
sketch1.addConstraint(Sketcher.Constraint("Horizontal", 6, 3, 14, 3))
sketch1.addConstraint(Sketcher.Constraint("Horizontal", 7, 3, 17, 3))
sketch1.addConstraint(Sketcher.Constraint("Horizontal", 20, 3, 23, 3))
sketch1.addConstraint(Sketcher.Constraint("Horizontal", 21, 3, 26, 3))
sketch1.addConstraint(Sketcher.Constraint("Horizontal", 32, 3, 39, 3))
sketch1.addConstraint(Sketcher.Constraint("Horizontal", 33, 3, 40, 3))
sketch1.addConstraint(Sketcher.Constraint("Horizontal", 34, 3, 41, 3))
sketch1.addConstraint(Sketcher.Constraint("Horizontal", 40, 3, 45, 3))
sketch1.addConstraint(Sketcher.Constraint("Horizontal", 35, 3, 51, 3))
sketch1.addConstraint(Sketcher.Constraint("Horizontal", 36, 3, 52, 3))
sketch1.addConstraint(Sketcher.Constraint("Horizontal", 37, 3, 53, 3))
sketch1.addConstraint(Sketcher.Constraint("Horizontal", 38, 3, 54, 3))
sketch1.addConstraint(Sketcher.Constraint("Horizontal", 52, 3, 58, 3))
sketch1.addConstraint(Sketcher.Constraint("Horizontal", 53, 3, 61, 3))
sketch1.addConstraint(Sketcher.Constraint("Horizontal", 54, 3, 64, 3))
sketch1.addConstraint(Sketcher.Constraint("Horizontal", 9, 3, 10, 1))
sketch1.addConstraint(Sketcher.Constraint("Horizontal", 12, 3, 13, 1))
sketch1.addConstraint(Sketcher.Constraint("Horizontal", 15, 3, 16, 1))
sketch1.addConstraint(Sketcher.Constraint("Horizontal", 19, 3, 17, 1))
sketch1.addConstraint(Sketcher.Constraint("Horizontal", 25, 3, 23, 1))
sketch1.addConstraint(Sketcher.Constraint("Horizontal", 28, 3, 26, 1))
sketch1.addConstraint(Sketcher.Constraint("Horizontal", 44, 3, 42, 1))
sketch1.addConstraint(Sketcher.Constraint("Horizontal", 47, 3, 45, 1))
sketch1.addConstraint(Sketcher.Constraint("Horizontal", 50, 3, 48, 1))
sketch1.addConstraint(Sketcher.Constraint("Horizontal", 57, 3, 55, 1))
sketch1.addConstraint(Sketcher.Constraint("Horizontal", 60, 3, 58, 1))
sketch1.addConstraint(Sketcher.Constraint("Horizontal", 63, 3, 61, 1))
sketch1.addConstraint(Sketcher.Constraint("Horizontal", 65, 3, 64, 1))
sketch1.addConstraint(Sketcher.Constraint("Vertical", 4, 3, 5, 3))
sketch1.addConstraint(Sketcher.Constraint("Vertical", 5, 3, 6, 3))
sketch1.addConstraint(Sketcher.Constraint("Vertical", 6, 3, 7, 3))
sketch1.addConstraint(Sketcher.Constraint("Vertical", 10, 3, 11, 3))
sketch1.addConstraint(Sketcher.Constraint("Vertical", 13, 3, 14, 3))
sketch1.addConstraint(Sketcher.Constraint("Vertical", 16, 3, 17, 3))
sketch1.addConstraint(Sketcher.Constraint("Vertical", 7, 3, 20, 3))
sketch1.addConstraint(Sketcher.Constraint("Vertical", 20, 3, 21, 3))
sketch1.addConstraint(Sketcher.Constraint("Vertical", 21, 3, 22, 3))
sketch1.addConstraint(Sketcher.Constraint("Vertical", 19, 3, 23, 3))
sketch1.addConstraint(Sketcher.Constraint("Vertical", 25, 3, 26, 3))
sketch1.addConstraint(Sketcher.Constraint("Vertical", 28, 3, 29, 3))
sketch1.addConstraint(Sketcher.Constraint("Vertical", 32, 3, 33, 3))
sketch1.addConstraint(Sketcher.Constraint("Vertical", 33, 3, 34, 3))
sketch1.addConstraint(Sketcher.Constraint("Vertical", 34, 3, 35, 3))
sketch1.addConstraint(Sketcher.Constraint("Vertical", 35, 3, 36, 3))
sketch1.addConstraint(Sketcher.Constraint("Vertical", 36, 3, 37, 3))
sketch1.addConstraint(Sketcher.Constraint("Vertical", 37, 3, 38, 3))
sketch1.addConstraint(Sketcher.Constraint("Vertical", 39, 3, 40, 3))
sketch1.addConstraint(Sketcher.Constraint("Vertical", 44, 3, 45, 3))
sketch1.addConstraint(Sketcher.Constraint("Vertical", 51, 3, 52, 3))
sketch1.addConstraint(Sketcher.Constraint("Vertical", 52, 3, 53, 3))
sketch1.addConstraint(Sketcher.Constraint("Vertical", 53, 3, 54, 3))
sketch1.addConstraint(Sketcher.Constraint("Vertical", 57, 3, 58, 3))
sketch1.addConstraint(Sketcher.Constraint("Vertical", 60, 3, 61, 3))
sketch1.addConstraint(Sketcher.Constraint("Vertical", 63, 3, 64, 3))
sketch1.addConstraint(Sketcher.Constraint("Vertical", 65, 3, 8, 1))
sketch1.addConstraint(Sketcher.Constraint("Vertical", 8, 1, 9, 1))
sketch1.addConstraint(Sketcher.Constraint("Vertical", 9, 1, 11, 1))
sketch1.addConstraint(Sketcher.Constraint("Vertical", 11, 1, 12, 1))
sketch1.addConstraint(Sketcher.Constraint("Vertical", 12, 1, 14, 1))
sketch1.addConstraint(Sketcher.Constraint("Vertical", 14, 1, 15, 1))
sketch1.addConstraint(Sketcher.Constraint("Vertical", 15, 1, 18, 1))
sketch1.addConstraint(Sketcher.Constraint("Vertical", 18, 1, 19, 1))
sketch1.addConstraint(Sketcher.Constraint("Vertical", 19, 1, 24, 1))
sketch1.addConstraint(Sketcher.Constraint("Vertical", 24, 1, 25, 1))
sketch1.addConstraint(Sketcher.Constraint("Vertical", 25, 1, 27, 1))
sketch1.addConstraint(Sketcher.Constraint("Vertical", 27, 1, 28, 1))
sketch1.addConstraint(Sketcher.Constraint("Vertical", 28, 1, 30, 1))
sketch1.addConstraint(Sketcher.Constraint("Vertical", 31, 1, 43, 1))
sketch1.addConstraint(Sketcher.Constraint("Vertical", 43, 1, 44, 1))
sketch1.addConstraint(Sketcher.Constraint("Vertical", 44, 1, 46, 1))
sketch1.addConstraint(Sketcher.Constraint("Vertical", 46, 1, 47, 1))
sketch1.addConstraint(Sketcher.Constraint("Vertical", 47, 1, 49, 1))
sketch1.addConstraint(Sketcher.Constraint("Vertical", 49, 1, 50, 1))
sketch1.addConstraint(Sketcher.Constraint("Vertical", 50, 1, 56, 1))
sketch1.addConstraint(Sketcher.Constraint("Vertical", 56, 1, 57, 1))
sketch1.addConstraint(Sketcher.Constraint("Vertical", 57, 1, 59, 1))
sketch1.addConstraint(Sketcher.Constraint("Vertical", 59, 1, 60, 1))
sketch1.addConstraint(Sketcher.Constraint("Vertical", 60, 1, 62, 1))
sketch1.addConstraint(Sketcher.Constraint("Vertical", 62, 1, 63, 1))
sketch1.addConstraint(Sketcher.Constraint("Vertical", 63, 1, 65, 1))
sketch1.addConstraint(Sketcher.Constraint("Diameter", 4, Q("0.094 in")))
sketch1.addConstraint(Sketcher.Constraint("DistanceX", 1, 2, 1, 1, Q("6.3 in")))
sketch1.addConstraint(Sketcher.Constraint("DistanceY", 0, 1, 0, 2, Q("2.2 in")))
sketch1.addConstraint(Sketcher.Constraint("DistanceY", -1, 1, 37, 3, Q("1 in")))
sketch1.addConstraint(Sketcher.Constraint("DistanceY", 4, 3, -1, 1, Q("0.7 in")))
sketch1.addConstraint(Sketcher.Constraint("DistanceY", 5, 3, -1, 1, Q("0.6 in")))
sketch1.addConstraint(Sketcher.Constraint("DistanceY", 6, 3, -1, 1, Q("0.4 in")))
sketch1.addConstraint(Sketcher.Constraint("DistanceY", 7, 3, -1, 1, Q("0.3 in")))
sketch1.addConstraint(Sketcher.Constraint("DistanceY", 20, 3, -1, 1, Q("0.2 in")))
sketch1.addConstraint(Sketcher.Constraint("DistanceY", 21, 3, -1, 1, Q("0.1 in")))
sketch1.addConstraint(Sketcher.Constraint("DistanceY", -1, 1, 33, 3, Q("0.5 in")))
sketch1.addConstraint(Sketcher.Constraint("DistanceY", -1, 1, 36, 3, Q("0.8 in")))
sketch1.addConstraint(Sketcher.Constraint("DistanceY", -1, 1, 38, 3, Q("1.1 in")))
sketch1.addConstraint(Sketcher.Constraint("DistanceY", -1, 1, 0, 2, Q("1.3 in")))
sketch1.addConstraint(Sketcher.Constraint("DistanceX", -1, 1, 4, 3, Q("53.066864 mm")))
sketch1.addConstraint(Sketcher.Constraint("DistanceX", -1, 1, 8, 3, Q("55.606864 mm")))
sketch1.addConstraint(Sketcher.Constraint("DistanceX", -1, 1, 32, 3, Q("50.526864 mm")))
sketch1.addConstraint(Sketcher.Constraint("DistanceX", -1, 1, 0, 2, Q("60.686864 mm")))
pad1 = doc.addObject("PartDesign::Pad", "Pad")
body.addObject(pad1)
pad1.Profile = sketch1
pad1.Length = Q("0.063 in")
pad1.Reversed = True

sketch2 = doc.addObject("Sketcher::SketchObject", "Sketch001")
body.addObject(sketch2)
sketch2.AttachmentSupport = (doc.XY_Plane, [""])
sketch2.MapMode = "FlatFace"
sketch2.addGeometry(Part.Circle(App.Vector(-94.3, 5.1, 0), App.Vector(0, 0, 1), 1.6), False)
sketch2.addGeometry(Part.Circle(App.Vector(-19.3, 5.1, 0), App.Vector(0, 0, 1), 1.6), False)
sketch2.addGeometry(Part.Circle(App.Vector(55.6, 5.1, 0), App.Vector(0, 0, 1), 1.6), False)
sketch2.addConstraint(Sketcher.Constraint("Equal", 0, 1))
sketch2.addConstraint(Sketcher.Constraint("Equal", 1, 2))
sketch2.addConstraint(Sketcher.Constraint("Horizontal", 0, 3, 1, 3))
sketch2.addConstraint(Sketcher.Constraint("Horizontal", 1, 3, 2, 3))
sketch2.addConstraint(Sketcher.Constraint("Diameter", 0, Q("0.125 in")))
sketch2.addConstraint(Sketcher.Constraint("DistanceY", -1, 1, 0, 3, Q("0.2 in")))
sketch2.addConstraint(Sketcher.Constraint("DistanceX", 0, 3, 2, 3, Q("5.9 in")))
sketch2.addConstraint(Sketcher.Constraint("DistanceX", 0, 3, 1, 3, Q("2.95 in")))
sketch2.addConstraint(Sketcher.Constraint("DistanceX", 0, 3, -1, 1, Q("94.253136 mm")))
doc.recompute()
hole = doc.addObject("PartDesign::Hole", "Hole")
body.addObject(hole)
hole.Profile = sketch2
hole.ThreadType = "None"
hole.Diameter = Q("0.125 in")
hole.DepthType = "ThroughAll"
doc.recompute()

fillet = doc.addObject("PartDesign::Fillet", "Fillet")
body.addObject(fillet)
fillet.Base = (hole, edges_at(hole, [
    (60.687, -22.86, -0.8),
    (60.687, 33.02, -0.8),
    (-99.333, -22.86, -0.8),
    (-99.333, 33.02, -0.8),
]))
fillet.Radius = Q("0.2 in")

doc.recompute()
